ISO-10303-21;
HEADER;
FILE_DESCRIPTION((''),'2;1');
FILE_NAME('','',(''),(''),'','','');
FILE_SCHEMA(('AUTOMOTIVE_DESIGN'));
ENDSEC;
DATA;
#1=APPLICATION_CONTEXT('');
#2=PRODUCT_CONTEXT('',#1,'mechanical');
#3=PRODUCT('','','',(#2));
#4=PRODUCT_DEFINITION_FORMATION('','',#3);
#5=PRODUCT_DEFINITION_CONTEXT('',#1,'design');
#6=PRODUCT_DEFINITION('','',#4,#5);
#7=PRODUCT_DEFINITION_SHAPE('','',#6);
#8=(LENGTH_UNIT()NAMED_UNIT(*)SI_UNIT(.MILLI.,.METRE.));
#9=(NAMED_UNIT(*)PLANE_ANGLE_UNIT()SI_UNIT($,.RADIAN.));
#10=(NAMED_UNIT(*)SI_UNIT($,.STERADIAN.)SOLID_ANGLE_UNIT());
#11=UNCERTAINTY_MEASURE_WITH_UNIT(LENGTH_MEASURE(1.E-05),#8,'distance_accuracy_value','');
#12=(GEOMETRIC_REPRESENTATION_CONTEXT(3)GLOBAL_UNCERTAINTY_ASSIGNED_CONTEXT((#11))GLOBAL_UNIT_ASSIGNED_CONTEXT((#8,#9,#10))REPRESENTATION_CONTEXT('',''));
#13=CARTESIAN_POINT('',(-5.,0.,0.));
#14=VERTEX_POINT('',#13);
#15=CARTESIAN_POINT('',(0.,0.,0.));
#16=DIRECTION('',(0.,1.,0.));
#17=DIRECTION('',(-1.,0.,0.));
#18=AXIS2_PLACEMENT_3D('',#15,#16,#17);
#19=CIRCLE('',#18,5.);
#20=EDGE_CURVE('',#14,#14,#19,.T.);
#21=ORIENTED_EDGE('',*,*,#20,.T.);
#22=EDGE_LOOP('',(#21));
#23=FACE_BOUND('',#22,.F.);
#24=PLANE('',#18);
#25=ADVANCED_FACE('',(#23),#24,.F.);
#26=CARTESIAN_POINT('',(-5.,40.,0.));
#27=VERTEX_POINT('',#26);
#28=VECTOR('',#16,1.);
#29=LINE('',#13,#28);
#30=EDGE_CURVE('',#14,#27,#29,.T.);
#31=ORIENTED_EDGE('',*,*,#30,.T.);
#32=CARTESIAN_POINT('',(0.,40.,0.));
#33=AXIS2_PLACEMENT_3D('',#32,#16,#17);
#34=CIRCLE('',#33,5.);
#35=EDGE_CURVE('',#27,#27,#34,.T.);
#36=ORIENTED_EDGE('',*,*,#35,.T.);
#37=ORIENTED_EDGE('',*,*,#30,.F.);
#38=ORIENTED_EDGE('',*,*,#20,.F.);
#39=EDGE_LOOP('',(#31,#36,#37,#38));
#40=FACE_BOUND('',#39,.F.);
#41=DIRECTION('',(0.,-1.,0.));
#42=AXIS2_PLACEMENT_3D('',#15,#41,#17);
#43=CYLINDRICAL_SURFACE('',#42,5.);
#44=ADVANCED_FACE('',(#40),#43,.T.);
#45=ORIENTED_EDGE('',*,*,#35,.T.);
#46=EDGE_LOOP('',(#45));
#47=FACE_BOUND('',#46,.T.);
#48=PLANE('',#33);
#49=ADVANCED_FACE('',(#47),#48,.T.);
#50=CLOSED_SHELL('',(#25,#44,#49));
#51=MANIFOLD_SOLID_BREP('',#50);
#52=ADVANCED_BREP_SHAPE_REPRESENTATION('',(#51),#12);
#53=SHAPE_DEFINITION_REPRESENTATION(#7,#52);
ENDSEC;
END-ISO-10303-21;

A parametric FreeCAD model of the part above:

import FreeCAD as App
import Part
import Sketcher

doc = App.newDocument("Part")
body = doc.addObject("PartDesign::Body", "Body")

# Sketch on XZ plane
sketch1 = doc.addObject("Sketcher::SketchObject", "Sketch")
body.addObject(sketch1)
sketch1.AttachmentSupport = (doc.XZ_Plane, [""])
sketch1.MapMode = "FlatFace"
sketch1.addGeometry(Part.Circle(App.Vector(0, 0, 0), App.Vector(0, 0, 1), 5), False)
sketch1.addConstraint([
    Sketcher.Constraint("Coincident", 0, 3, -1, 1),
    Sketcher.Constraint("Diameter", 0, 10.0),
])
pad1 = doc.addObject("PartDesign::Pad", "Pad")
body.addObject(pad1)
pad1.Profile = sketch1
pad1.Length = 40
pad1.Reversed = True

doc.recompute()
